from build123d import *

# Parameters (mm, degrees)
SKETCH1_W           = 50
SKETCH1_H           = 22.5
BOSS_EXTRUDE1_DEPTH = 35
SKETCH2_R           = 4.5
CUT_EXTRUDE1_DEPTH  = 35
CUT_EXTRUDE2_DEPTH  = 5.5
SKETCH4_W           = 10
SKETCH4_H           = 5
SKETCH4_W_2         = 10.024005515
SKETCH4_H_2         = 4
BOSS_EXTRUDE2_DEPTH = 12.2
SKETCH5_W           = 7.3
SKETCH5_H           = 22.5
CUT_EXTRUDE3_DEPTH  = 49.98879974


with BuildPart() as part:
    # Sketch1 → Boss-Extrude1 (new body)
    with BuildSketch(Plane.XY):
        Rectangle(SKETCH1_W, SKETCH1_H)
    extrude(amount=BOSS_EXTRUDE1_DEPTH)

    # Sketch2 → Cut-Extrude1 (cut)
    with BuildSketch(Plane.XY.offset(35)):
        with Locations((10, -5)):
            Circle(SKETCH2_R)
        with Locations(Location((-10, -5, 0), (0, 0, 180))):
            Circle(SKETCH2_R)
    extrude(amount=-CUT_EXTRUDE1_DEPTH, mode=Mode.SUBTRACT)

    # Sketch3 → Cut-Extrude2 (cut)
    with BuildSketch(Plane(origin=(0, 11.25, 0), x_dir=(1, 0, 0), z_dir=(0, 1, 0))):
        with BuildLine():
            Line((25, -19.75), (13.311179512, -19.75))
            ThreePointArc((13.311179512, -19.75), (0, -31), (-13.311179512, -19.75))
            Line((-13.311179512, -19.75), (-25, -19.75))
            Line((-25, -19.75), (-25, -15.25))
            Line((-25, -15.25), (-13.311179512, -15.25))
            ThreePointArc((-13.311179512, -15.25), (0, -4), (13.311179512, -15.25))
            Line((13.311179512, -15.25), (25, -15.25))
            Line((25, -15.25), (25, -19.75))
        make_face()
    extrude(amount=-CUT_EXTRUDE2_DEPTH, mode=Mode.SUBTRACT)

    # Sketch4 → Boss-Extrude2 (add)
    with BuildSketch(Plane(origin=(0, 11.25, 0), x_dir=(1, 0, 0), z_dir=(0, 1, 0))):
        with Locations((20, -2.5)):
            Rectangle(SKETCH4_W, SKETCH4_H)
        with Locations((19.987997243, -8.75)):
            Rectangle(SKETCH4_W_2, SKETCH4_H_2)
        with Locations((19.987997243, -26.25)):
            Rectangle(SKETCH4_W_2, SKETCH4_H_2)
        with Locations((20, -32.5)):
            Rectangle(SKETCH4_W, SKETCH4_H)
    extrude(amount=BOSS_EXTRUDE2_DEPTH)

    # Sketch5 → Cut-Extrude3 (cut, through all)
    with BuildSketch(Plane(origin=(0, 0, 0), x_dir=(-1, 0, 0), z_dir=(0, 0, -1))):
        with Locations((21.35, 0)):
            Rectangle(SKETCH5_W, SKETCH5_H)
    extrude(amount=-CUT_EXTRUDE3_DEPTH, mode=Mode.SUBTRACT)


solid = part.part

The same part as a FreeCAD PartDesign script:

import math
import FreeCAD as App
import Part
import Sketcher
from FreeCAD import Vector
Q = App.Units.Quantity


def add_polygon(sketch, points):
    """Adds a closed chain of lines whose ends are joined by coincident constraints."""
    first, n = sketch.GeometryCount, len(points)
    for a, b in zip(points, points[1:] + points[:1]):
        sketch.addGeometry(Part.LineSegment(App.Vector(*a, 0), App.Vector(*b, 0)), False)
    for i in range(n):
        sketch.addConstraint(Sketcher.Constraint("Coincident", first + i, 2, first + (i + 1) % n, 1))

doc = App.newDocument("Part")
body = doc.addObject("PartDesign::Body", "Body")

# Sketch on XY plane
sketch1 = body.newObject("Sketcher::SketchObject", "Sketch")
sketch1.AttachmentSupport = (doc.getObject("XY_Plane"), [""])
sketch1.MapMode = "FlatFace"
add_polygon(sketch1, [(-25, 11.25), (-25, -11.25), (25, -11.25), (25, 11.25)])  # lines 0-3
sketch1.addConstraint(Sketcher.Constraint("Vertical", 0))
sketch1.addConstraint(Sketcher.Constraint("Horizontal", 1))
sketch1.addConstraint(Sketcher.Constraint("Vertical", 2))
sketch1.addConstraint(Sketcher.Constraint("Horizontal", 3))
sketch1.addConstraint(Sketcher.Constraint("Symmetric", 0, 2, 2, 2, -1, 1))
sketch1.addConstraint(Sketcher.Constraint("DistanceX", 1, 1, 1, 2, Q("50 mm")))
sketch1.addConstraint(Sketcher.Constraint("DistanceY", 0, 2, 0, 1, Q("22.5 mm")))
pad1 = body.newObject("PartDesign::Pad", "Pad")
pad1.Profile = sketch1
pad1.Length = 35

# Sketch on XY plane
sketch2 = body.newObject("Sketcher::SketchObject", "Sketch001")
sketch2.AttachmentSupport = (doc.getObject("XY_Plane"), [""])
sketch2.MapMode = "FlatFace"
sketch2.AttachmentOffset = App.Placement(Vector(0, 0, 35), App.Rotation())
sketch2.addGeometry(Part.Circle(Vector(10, -5, 0), Vector(0, 0, 1), 4.5), False)
sketch2.addGeometry(Part.Circle(Vector(-10, -5, 0), Vector(0, 0, 1), 4.5), False)
sketch2.addConstraint(Sketcher.Constraint("Equal", 0, 1))
sketch2.addConstraint(Sketcher.Constraint("Symmetric", 0, 3, 1, 3, -2))
sketch2.addConstraint(Sketcher.Constraint("Diameter", 0, Q("9 mm")))
sketch2.addConstraint(Sketcher.Constraint("DistanceX", -1, 1, 0, 3, Q("10 mm")))
sketch2.addConstraint(Sketcher.Constraint("DistanceY", 0, 3, -1, 1, Q("5 mm")))
pocket1 = body.newObject("PartDesign::Pocket", "Pocket")
pocket1.Profile = sketch2
pocket1.Length = 35

# Sketch on XZ plane
sketch3 = body.newObject("Sketcher::SketchObject", "Sketch002")
sketch3.AttachmentSupport = (doc.getObject("XZ_Plane"), [""])
sketch3.MapMode = "FlatFace"
sketch3.AttachmentOffset = App.Placement(Vector(0, 0, -11.25), App.Rotation())
sketch3.addGeometry(Part.LineSegment(Vector(13.31118, 19.75, 0), Vector(25, 19.75, 0)), False)
sketch3.addGeometry(Part.LineSegment(Vector(25, 19.75, 0), Vector(25, 15.25, 0)), False)
sketch3.addGeometry(Part.LineSegment(Vector(25, 15.25, 0), Vector(13.31118, 15.25, 0)), False)
sketch3.addGeometry(Part.ArcOfCircle(Part.Circle(Vector(0, 17.5, 0), Vector(0, 0, 1), 13.5), math.radians(-170.405932), math.radians(-9.594068)), False)
sketch3.addGeometry(Part.LineSegment(Vector(-13.31118, 15.25, 0), Vector(-25, 15.25, 0)), False)
sketch3.addGeometry(Part.LineSegment(Vector(-25, 15.25, 0), Vector(-25, 19.75, 0)), False)
sketch3.addGeometry(Part.LineSegment(Vector(-25, 19.75, 0), Vector(-13.31118, 19.75, 0)), False)
sketch3.addGeometry(Part.ArcOfCircle(Part.Circle(Vector(0, 17.5, 0), Vector(0, 0, 1), 13.5), math.radians(9.594068), math.radians(170.405932)), False)
sketch3.addConstraint(Sketcher.Constraint("Coincident", 0, 2, 1, 1))
sketch3.addConstraint(Sketcher.Constraint("Coincident", 1, 2, 2, 1))
sketch3.addConstraint(Sketcher.Constraint("Coincident", 2, 2, 3, 2))
sketch3.addConstraint(Sketcher.Constraint("Coincident", 3, 1, 4, 1))
sketch3.addConstraint(Sketcher.Constraint("Coincident", 4, 2, 5, 1))
sketch3.addConstraint(Sketcher.Constraint("Coincident", 5, 2, 6, 1))
sketch3.addConstraint(Sketcher.Constraint("Coincident", 6, 2, 7, 2))
sketch3.addConstraint(Sketcher.Constraint("Coincident", 7, 1, 0, 1))
sketch3.addConstraint(Sketcher.Constraint("Horizontal", 0))
sketch3.addConstraint(Sketcher.Constraint("Vertical", 1))
sketch3.addConstraint(Sketcher.Constraint("Horizontal", 2))
sketch3.addConstraint(Sketcher.Constraint("Horizontal", 4))
sketch3.addConstraint(Sketcher.Constraint("Vertical", 5))
sketch3.addConstraint(Sketcher.Constraint("Horizontal", 6))
sketch3.addConstraint(Sketcher.Constraint("Coincident", 7, 3, 3, 3))
sketch3.addConstraint(Sketcher.Constraint("Equal", 3, 7))
sketch3.addConstraint(Sketcher.Constraint("Symmetric", 2, 2, 3, 1, -2))
sketch3.addConstraint(Sketcher.Constraint("Symmetric", 0, 2, 5, 2, -2))
sketch3.addConstraint(Sketcher.Constraint("Vertical", 3, 1, 6, 2))
sketch3.addConstraint(Sketcher.Constraint("Radius", 3, Q("13.5 mm")))
sketch3.addConstraint(Sketcher.Constraint("DistanceY", 1, 2, 1, 1, Q("4.5 mm")))
sketch3.addConstraint(Sketcher.Constraint("DistanceX", -1, 1, 0, 2, Q("25 mm")))
sketch3.addConstraint(Sketcher.Constraint("DistanceY", -1, 1, 3, 3, Q("17.5 mm")))
pocket2 = body.newObject("PartDesign::Pocket", "Pocket001")
pocket2.Profile = sketch3
pocket2.Length = 5.5
pocket2.Reversed = True

# Sketch on XZ plane
sketch4 = body.newObject("Sketcher::SketchObject", "Sketch003")
sketch4.AttachmentSupport = (doc.getObject("XZ_Plane"), [""])
sketch4.MapMode = "FlatFace"
sketch4.AttachmentOffset = App.Placement(Vector(0, 0, -11.25), App.Rotation())
add_polygon(sketch4, [(15, 0), (15, 5), (25, 5), (25, 0)])  # lines 0-3
add_polygon(sketch4, [(14.975994, 6.75), (14.975994, 10.75), (25, 10.75), (25, 6.75)])  # lines 4-7
add_polygon(sketch4, [(14.975994, 24.25), (14.975994, 28.25), (25, 28.25), (25, 24.25)])  # lines 8-11
add_polygon(sketch4, [(15, 30), (15, 35), (25, 35), (25, 30)])  # lines 12-15
sketch4.addConstraint(Sketcher.Constraint("Vertical", 0))
sketch4.addConstraint(Sketcher.Constraint("Horizontal", 1))
sketch4.addConstraint(Sketcher.Constraint("Vertical", 2))
sketch4.addConstraint(Sketcher.Constraint("Horizontal", 3))
sketch4.addConstraint(Sketcher.Constraint("Vertical", 4))
sketch4.addConstraint(Sketcher.Constraint("Horizontal", 5))
sketch4.addConstraint(Sketcher.Constraint("Vertical", 6))
sketch4.addConstraint(Sketcher.Constraint("Horizontal", 7))
sketch4.addConstraint(Sketcher.Constraint("Vertical", 8))
sketch4.addConstraint(Sketcher.Constraint("Horizontal", 9))
sketch4.addConstraint(Sketcher.Constraint("Vertical", 10))
sketch4.addConstraint(Sketcher.Constraint("Horizontal", 11))
sketch4.addConstraint(Sketcher.Constraint("Vertical", 12))
sketch4.addConstraint(Sketcher.Constraint("Horizontal", 13))
sketch4.addConstraint(Sketcher.Constraint("Vertical", 14))
sketch4.addConstraint(Sketcher.Constraint("Horizontal", 15))
sketch4.addConstraint(Sketcher.Constraint("PointOnObject", 2, 2, -1))
sketch4.addConstraint(Sketcher.Constraint("Vertical", 2, 2, 5, 2))
sketch4.addConstraint(Sketcher.Constraint("Vertical", 7, 2, 8, 2))
sketch4.addConstraint(Sketcher.Constraint("Vertical", 6, 2, 9, 2))
sketch4.addConstraint(Sketcher.Constraint("Vertical", 3, 2, 12, 2))
sketch4.addConstraint(Sketcher.Constraint("Vertical", 10, 2, 13, 2))
sketch4.addConstraint(Sketcher.Constraint("Equal", 6, 8))
sketch4.addConstraint(Sketcher.Constraint("Equal", 2, 12))
sketch4.addConstraint(Sketcher.Constraint("DistanceX", 1, 1, 1, 2, Q("10 mm")))
sketch4.addConstraint(Sketcher.Constraint("DistanceY", 0, 1, 0, 2, Q("5 mm")))
sketch4.addConstraint(Sketcher.Constraint("DistanceY", 4, 1, 4, 2, Q("4 mm")))
sketch4.addConstraint(Sketcher.Constraint("DistanceX", -1, 1, 0, 2, Q("15 mm")))
sketch4.addConstraint(Sketcher.Constraint("DistanceY", -1, 1, 12, 2, Q("35 mm")))
sketch4.addConstraint(Sketcher.Constraint("DistanceY", 4, 2, 8, 2, Q("17.5 mm")))
sketch4.addConstraint(Sketcher.Constraint("DistanceY", -1, 1, 4, 2, Q("10.75 mm")))
sketch4.addConstraint(Sketcher.Constraint("DistanceX", 5, 1, 5, 2, Q("10.024006 mm")))
pad2 = body.newObject("PartDesign::Pad", "Pad001")
pad2.Profile = sketch4
pad2.Length = 12.2
pad2.Reversed = True

# Sketch on XY plane
sketch5 = body.newObject("Sketcher::SketchObject", "Sketch004")
sketch5.AttachmentSupport = (doc.getObject("XY_Plane"), [""])
sketch5.MapMode = "FlatFace"
add_polygon(sketch5, [(-17.7, 11.25), (-17.7, -11.25), (-25, -11.25), (-25, 11.25)])  # lines 0-3
sketch5.addConstraint(Sketcher.Constraint("Vertical", 0))
sketch5.addConstraint(Sketcher.Constraint("Horizontal", 1))
sketch5.addConstraint(Sketcher.Constraint("Vertical", 2))
sketch5.addConstraint(Sketcher.Constraint("Horizontal", 3))
sketch5.addConstraint(Sketcher.Constraint("DistanceX", 1, 2, 1, 1, Q("7.3 mm")))
sketch5.addConstraint(Sketcher.Constraint("DistanceY", 0, 2, 0, 1, Q("22.5 mm")))
sketch5.addConstraint(Sketcher.Constraint("DistanceX", 1, 2, -1, 1, Q("25 mm")))
sketch5.addConstraint(Sketcher.Constraint("DistanceY", 0, 2, -1, 1, Q("11.25 mm")))
pocket3 = body.newObject("PartDesign::Pocket", "Pocket002")
pocket3.Profile = sketch5
pocket3.Type = "ThroughAll"
pocket3.Reversed = True

doc.recompute()
